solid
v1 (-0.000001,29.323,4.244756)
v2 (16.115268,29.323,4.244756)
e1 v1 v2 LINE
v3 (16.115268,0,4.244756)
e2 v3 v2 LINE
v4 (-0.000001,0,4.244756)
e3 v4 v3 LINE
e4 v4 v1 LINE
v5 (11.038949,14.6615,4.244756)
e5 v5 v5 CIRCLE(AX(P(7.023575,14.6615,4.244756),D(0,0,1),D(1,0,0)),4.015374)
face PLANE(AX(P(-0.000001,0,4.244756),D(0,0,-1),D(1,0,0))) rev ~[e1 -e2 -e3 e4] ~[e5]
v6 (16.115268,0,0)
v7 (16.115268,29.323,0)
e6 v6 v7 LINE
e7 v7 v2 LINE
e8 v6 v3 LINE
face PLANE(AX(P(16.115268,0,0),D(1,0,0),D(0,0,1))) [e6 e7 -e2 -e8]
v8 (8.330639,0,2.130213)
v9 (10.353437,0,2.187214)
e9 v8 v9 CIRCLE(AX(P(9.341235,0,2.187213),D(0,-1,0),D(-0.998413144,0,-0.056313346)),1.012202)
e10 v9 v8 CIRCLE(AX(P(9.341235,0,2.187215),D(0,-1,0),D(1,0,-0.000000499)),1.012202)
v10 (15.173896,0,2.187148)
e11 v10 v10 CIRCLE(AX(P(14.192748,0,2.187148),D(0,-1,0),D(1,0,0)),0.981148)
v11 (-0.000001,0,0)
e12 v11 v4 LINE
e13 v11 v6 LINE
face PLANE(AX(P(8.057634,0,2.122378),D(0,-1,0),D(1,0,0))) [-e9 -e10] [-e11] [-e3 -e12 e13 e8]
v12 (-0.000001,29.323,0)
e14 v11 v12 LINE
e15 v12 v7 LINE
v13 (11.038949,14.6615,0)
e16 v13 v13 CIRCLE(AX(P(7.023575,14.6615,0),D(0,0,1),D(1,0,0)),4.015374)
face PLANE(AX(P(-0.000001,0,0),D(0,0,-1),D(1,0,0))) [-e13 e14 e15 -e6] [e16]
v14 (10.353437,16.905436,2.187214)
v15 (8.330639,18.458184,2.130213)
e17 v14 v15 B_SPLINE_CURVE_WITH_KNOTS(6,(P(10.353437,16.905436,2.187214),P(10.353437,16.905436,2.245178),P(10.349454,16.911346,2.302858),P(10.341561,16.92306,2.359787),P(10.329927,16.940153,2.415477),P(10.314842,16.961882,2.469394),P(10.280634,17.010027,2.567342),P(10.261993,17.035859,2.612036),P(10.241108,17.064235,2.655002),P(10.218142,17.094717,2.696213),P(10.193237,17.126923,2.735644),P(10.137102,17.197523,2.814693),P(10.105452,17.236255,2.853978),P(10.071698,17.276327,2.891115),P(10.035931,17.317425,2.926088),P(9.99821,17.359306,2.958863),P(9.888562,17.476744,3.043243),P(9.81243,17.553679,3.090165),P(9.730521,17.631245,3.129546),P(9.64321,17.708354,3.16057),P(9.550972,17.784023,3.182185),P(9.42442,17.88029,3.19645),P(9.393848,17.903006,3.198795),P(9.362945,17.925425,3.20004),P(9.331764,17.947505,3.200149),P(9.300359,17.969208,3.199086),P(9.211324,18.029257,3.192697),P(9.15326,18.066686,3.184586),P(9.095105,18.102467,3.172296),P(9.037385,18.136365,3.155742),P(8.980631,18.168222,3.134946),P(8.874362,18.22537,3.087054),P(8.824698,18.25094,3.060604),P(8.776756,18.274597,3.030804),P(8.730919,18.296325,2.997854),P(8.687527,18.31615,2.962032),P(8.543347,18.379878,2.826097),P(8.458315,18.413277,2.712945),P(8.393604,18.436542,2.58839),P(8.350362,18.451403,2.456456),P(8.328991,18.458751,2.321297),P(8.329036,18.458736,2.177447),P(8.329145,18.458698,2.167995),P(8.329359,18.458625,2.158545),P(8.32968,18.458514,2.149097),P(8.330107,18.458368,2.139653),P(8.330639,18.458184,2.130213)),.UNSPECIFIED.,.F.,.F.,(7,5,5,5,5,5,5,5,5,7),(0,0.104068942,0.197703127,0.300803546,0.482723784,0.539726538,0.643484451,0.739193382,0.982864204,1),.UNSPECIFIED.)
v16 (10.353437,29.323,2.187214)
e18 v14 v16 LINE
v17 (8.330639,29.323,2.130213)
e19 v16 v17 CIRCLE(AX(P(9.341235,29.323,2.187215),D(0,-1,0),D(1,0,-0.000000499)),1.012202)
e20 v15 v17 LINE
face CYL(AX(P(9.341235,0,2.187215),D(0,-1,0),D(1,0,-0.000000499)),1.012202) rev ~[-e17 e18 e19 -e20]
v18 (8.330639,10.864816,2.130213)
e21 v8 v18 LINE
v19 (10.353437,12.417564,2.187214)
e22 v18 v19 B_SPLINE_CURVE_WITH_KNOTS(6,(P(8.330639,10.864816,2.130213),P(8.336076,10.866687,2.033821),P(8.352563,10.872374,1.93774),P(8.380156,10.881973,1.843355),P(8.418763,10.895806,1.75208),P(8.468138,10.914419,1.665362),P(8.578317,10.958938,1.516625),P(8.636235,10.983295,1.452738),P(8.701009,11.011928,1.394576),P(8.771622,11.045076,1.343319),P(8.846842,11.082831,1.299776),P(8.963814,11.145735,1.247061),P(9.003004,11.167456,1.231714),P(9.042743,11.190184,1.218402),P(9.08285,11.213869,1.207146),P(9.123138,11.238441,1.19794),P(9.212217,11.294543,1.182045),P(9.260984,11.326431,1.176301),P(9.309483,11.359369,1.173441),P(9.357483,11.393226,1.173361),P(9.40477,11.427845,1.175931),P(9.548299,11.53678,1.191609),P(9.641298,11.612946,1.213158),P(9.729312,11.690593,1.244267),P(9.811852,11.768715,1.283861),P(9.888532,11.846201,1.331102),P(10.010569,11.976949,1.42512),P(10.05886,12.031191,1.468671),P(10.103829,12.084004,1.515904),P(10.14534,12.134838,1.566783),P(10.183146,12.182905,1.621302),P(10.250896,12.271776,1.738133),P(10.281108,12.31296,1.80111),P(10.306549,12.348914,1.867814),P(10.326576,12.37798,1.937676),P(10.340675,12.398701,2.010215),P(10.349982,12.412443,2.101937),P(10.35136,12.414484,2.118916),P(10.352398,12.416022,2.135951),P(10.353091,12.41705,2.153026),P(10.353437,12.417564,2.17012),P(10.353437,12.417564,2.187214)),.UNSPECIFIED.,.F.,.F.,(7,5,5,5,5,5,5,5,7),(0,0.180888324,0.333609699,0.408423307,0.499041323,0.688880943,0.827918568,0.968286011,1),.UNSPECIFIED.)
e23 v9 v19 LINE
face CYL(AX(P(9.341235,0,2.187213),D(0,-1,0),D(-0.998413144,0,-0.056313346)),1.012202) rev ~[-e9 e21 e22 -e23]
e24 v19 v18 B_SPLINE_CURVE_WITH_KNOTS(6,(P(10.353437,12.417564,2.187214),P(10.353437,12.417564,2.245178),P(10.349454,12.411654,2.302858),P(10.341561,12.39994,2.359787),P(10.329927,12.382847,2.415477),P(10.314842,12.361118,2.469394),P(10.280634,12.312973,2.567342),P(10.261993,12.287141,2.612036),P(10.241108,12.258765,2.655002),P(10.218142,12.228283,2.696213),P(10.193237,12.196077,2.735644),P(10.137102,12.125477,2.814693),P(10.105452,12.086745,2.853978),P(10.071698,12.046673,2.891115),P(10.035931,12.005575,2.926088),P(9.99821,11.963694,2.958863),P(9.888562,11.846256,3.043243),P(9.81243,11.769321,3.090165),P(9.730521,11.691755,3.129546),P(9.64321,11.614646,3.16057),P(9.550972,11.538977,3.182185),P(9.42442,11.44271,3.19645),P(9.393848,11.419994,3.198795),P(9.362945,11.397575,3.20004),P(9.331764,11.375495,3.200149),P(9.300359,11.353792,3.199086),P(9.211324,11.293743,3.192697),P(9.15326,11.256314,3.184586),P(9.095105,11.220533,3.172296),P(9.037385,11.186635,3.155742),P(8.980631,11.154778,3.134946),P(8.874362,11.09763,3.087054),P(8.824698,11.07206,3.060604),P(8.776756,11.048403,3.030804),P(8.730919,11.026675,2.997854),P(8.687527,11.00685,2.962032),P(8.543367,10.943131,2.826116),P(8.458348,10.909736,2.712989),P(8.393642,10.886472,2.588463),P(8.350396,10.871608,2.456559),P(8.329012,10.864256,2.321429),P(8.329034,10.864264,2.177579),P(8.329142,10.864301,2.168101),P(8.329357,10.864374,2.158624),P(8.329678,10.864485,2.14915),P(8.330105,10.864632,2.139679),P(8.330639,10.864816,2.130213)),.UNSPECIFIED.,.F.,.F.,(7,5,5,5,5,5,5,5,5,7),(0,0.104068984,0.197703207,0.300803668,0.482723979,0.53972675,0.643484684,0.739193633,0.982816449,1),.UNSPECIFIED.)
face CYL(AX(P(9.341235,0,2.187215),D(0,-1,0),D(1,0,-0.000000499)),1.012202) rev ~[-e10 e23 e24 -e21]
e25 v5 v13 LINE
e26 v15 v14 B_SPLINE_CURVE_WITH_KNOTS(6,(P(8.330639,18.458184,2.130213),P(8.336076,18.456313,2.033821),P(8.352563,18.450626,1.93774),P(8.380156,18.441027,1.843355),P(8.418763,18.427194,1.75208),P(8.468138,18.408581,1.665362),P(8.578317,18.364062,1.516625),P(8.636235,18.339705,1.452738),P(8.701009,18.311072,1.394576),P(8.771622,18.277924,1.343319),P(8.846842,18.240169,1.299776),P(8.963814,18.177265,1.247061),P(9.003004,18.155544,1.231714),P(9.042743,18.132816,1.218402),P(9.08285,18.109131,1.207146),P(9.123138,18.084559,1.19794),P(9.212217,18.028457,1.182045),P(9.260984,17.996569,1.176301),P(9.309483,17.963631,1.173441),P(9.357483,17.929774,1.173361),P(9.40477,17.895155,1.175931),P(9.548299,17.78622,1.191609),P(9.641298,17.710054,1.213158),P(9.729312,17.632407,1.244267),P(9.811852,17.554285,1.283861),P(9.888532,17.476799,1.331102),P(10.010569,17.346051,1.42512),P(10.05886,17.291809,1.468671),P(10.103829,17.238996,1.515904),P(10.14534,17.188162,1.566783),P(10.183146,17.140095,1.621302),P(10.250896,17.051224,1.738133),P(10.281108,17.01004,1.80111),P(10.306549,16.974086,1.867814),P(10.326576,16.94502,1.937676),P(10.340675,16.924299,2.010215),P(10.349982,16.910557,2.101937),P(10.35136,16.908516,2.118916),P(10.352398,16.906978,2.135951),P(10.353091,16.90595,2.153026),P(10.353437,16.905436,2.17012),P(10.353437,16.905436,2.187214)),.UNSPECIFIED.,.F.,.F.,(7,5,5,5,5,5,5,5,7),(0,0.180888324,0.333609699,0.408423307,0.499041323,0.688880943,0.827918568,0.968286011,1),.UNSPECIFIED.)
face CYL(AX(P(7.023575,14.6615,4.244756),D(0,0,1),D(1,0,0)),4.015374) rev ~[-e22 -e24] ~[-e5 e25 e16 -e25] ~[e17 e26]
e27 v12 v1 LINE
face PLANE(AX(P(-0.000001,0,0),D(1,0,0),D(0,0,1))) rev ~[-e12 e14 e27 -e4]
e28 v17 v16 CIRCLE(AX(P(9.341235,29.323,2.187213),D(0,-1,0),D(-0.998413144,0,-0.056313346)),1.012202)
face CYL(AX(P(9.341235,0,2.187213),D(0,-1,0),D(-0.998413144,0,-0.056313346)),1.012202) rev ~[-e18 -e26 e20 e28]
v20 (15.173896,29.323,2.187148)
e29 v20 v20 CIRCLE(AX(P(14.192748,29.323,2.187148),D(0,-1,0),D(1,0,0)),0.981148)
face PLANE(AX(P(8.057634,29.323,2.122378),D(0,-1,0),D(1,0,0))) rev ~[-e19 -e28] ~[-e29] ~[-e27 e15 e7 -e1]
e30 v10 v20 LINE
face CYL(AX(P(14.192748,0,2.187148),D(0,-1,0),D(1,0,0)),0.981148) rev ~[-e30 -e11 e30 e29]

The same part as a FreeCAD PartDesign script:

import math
import FreeCAD as App
import Part
import Sketcher
from FreeCAD import Vector
Q = App.Units.Quantity

doc = App.newDocument("Part")
body = doc.addObject("PartDesign::Body", "Body")

# Sketch on XZ plane
sketch1 = body.newObject("Sketcher::SketchObject", "Sketch")
sketch1.AttachmentSupport = (doc.getObject("XZ_Plane"), [""])
sketch1.MapMode = "FlatFace"
sketch1.addGeometry([
    Part.LineSegment(Vector(0, 4.244756, 0), Vector(0, 0, 0)),
    Part.LineSegment(Vector(0, 0, 0), Vector(16.115268, 0, 0)),
    Part.LineSegment(Vector(16.115268, 0, 0), Vector(16.115268, 4.244756, 0)),
    Part.LineSegment(Vector(16.115268, 4.244756, 0), Vector(0, 4.244756, 0)),
], False)
sketch1.addConstraint([
    Sketcher.Constraint("Coincident", 0, 2, 1, 1),
    Sketcher.Constraint("Coincident", 1, 2, 2, 1),
    Sketcher.Constraint("Coincident", 2, 2, 3, 1),
    Sketcher.Constraint("Coincident", 3, 2, 0, 1),
    Sketcher.Constraint("Vertical", 0),
    Sketcher.Constraint("Horizontal", 1),
    Sketcher.Constraint("Vertical", 2),
    Sketcher.Constraint("Horizontal", 3),
    Sketcher.Constraint("Coincident", 0, 2, -1, 1),
    Sketcher.Constraint("DistanceX", 1, 1, 1, 2, Q("16.115269 mm")),
    Sketcher.Constraint("DistanceY", 0, 2, 0, 1, Q("4.244756 mm")),
])
pad1 = body.newObject("PartDesign::Pad", "Pad")
pad1.Profile = sketch1
pad1.Length = 29.323
pad1.Reversed = True

# Sketch on XZ plane
sketch2 = body.newObject("Sketcher::SketchObject", "Sketch001")
sketch2.AttachmentSupport = (doc.getObject("XZ_Plane"), [""])
sketch2.MapMode = "FlatFace"
sketch2.addGeometry([
    Part.Circle(Vector(14.192748, 2.187148, 0), Vector(0, 0, 1), 0.981148),
    Part.ArcOfCircle(Part.Circle(Vector(9.341235, 2.187213, 0), Vector(0, 0, 1), 1.012202), math.radians(-176.771775), math.radians(0.000029)),
    Part.ArcOfCircle(Part.Circle(Vector(9.341235, 2.187215, 0), Vector(0, 0, 1), 1.012202), math.radians(-0.000029), math.radians(183.228282)),
], False)
sketch2.addConstraint([
    Sketcher.Constraint("Tangent", 1, 1, 2, 2),
    Sketcher.Constraint("Coincident", 2, 1, 1, 2),
    Sketcher.Constraint("Horizontal", 1, 3, 2, 1),
    Sketcher.Constraint("Diameter", 0, Q("1.962296 mm")),
    Sketcher.Constraint("Radius", 1, Q("1.012202 mm")),
    Sketcher.Constraint("DistanceY", 1, 1, 1, 3, Q("0.057 mm")),
    Sketcher.Constraint("DistanceY", -1, 1, 0, 3, Q("2.187148 mm")),
    Sketcher.Constraint("DistanceX", -1, 1, 1, 1, Q("8.330639 mm")),
    Sketcher.Constraint("DistanceX", 1, 1, 0, 3, Q("5.862109 mm")),
    Sketcher.Constraint("DistanceY", -1, 1, 1, 3, Q("2.187213 mm")),
])
pocket1 = body.newObject("PartDesign::Pocket", "Pocket")
pocket1.Profile = sketch2
pocket1.Length = 42.4

# Sketch on XY plane
sketch3 = body.newObject("Sketcher::SketchObject", "Sketch002")
sketch3.AttachmentSupport = (doc.getObject("XY_Plane"), [""])
sketch3.MapMode = "FlatFace"
sketch3.AttachmentOffset = App.Placement(Vector(0, 0, 4.244756), App.Rotation())
sketch3.addGeometry(Part.Circle(Vector(7.023575, 14.6615, 0), Vector(0, 0, 1), 4.015374), False)
sketch3.addConstraint([
    Sketcher.Constraint("Diameter", 0, Q("8.030748 mm")),
    Sketcher.Constraint("DistanceY", -1, 1, 0, 3, Q("14.6615 mm")),
    Sketcher.Constraint("DistanceX", -1, 1, 0, 3, Q("7.023575 mm")),
])
pocket2 = body.newObject("PartDesign::Pocket", "Pocket001")
pocket2.Profile = sketch3
pocket2.Length = 25

doc.recompute()
